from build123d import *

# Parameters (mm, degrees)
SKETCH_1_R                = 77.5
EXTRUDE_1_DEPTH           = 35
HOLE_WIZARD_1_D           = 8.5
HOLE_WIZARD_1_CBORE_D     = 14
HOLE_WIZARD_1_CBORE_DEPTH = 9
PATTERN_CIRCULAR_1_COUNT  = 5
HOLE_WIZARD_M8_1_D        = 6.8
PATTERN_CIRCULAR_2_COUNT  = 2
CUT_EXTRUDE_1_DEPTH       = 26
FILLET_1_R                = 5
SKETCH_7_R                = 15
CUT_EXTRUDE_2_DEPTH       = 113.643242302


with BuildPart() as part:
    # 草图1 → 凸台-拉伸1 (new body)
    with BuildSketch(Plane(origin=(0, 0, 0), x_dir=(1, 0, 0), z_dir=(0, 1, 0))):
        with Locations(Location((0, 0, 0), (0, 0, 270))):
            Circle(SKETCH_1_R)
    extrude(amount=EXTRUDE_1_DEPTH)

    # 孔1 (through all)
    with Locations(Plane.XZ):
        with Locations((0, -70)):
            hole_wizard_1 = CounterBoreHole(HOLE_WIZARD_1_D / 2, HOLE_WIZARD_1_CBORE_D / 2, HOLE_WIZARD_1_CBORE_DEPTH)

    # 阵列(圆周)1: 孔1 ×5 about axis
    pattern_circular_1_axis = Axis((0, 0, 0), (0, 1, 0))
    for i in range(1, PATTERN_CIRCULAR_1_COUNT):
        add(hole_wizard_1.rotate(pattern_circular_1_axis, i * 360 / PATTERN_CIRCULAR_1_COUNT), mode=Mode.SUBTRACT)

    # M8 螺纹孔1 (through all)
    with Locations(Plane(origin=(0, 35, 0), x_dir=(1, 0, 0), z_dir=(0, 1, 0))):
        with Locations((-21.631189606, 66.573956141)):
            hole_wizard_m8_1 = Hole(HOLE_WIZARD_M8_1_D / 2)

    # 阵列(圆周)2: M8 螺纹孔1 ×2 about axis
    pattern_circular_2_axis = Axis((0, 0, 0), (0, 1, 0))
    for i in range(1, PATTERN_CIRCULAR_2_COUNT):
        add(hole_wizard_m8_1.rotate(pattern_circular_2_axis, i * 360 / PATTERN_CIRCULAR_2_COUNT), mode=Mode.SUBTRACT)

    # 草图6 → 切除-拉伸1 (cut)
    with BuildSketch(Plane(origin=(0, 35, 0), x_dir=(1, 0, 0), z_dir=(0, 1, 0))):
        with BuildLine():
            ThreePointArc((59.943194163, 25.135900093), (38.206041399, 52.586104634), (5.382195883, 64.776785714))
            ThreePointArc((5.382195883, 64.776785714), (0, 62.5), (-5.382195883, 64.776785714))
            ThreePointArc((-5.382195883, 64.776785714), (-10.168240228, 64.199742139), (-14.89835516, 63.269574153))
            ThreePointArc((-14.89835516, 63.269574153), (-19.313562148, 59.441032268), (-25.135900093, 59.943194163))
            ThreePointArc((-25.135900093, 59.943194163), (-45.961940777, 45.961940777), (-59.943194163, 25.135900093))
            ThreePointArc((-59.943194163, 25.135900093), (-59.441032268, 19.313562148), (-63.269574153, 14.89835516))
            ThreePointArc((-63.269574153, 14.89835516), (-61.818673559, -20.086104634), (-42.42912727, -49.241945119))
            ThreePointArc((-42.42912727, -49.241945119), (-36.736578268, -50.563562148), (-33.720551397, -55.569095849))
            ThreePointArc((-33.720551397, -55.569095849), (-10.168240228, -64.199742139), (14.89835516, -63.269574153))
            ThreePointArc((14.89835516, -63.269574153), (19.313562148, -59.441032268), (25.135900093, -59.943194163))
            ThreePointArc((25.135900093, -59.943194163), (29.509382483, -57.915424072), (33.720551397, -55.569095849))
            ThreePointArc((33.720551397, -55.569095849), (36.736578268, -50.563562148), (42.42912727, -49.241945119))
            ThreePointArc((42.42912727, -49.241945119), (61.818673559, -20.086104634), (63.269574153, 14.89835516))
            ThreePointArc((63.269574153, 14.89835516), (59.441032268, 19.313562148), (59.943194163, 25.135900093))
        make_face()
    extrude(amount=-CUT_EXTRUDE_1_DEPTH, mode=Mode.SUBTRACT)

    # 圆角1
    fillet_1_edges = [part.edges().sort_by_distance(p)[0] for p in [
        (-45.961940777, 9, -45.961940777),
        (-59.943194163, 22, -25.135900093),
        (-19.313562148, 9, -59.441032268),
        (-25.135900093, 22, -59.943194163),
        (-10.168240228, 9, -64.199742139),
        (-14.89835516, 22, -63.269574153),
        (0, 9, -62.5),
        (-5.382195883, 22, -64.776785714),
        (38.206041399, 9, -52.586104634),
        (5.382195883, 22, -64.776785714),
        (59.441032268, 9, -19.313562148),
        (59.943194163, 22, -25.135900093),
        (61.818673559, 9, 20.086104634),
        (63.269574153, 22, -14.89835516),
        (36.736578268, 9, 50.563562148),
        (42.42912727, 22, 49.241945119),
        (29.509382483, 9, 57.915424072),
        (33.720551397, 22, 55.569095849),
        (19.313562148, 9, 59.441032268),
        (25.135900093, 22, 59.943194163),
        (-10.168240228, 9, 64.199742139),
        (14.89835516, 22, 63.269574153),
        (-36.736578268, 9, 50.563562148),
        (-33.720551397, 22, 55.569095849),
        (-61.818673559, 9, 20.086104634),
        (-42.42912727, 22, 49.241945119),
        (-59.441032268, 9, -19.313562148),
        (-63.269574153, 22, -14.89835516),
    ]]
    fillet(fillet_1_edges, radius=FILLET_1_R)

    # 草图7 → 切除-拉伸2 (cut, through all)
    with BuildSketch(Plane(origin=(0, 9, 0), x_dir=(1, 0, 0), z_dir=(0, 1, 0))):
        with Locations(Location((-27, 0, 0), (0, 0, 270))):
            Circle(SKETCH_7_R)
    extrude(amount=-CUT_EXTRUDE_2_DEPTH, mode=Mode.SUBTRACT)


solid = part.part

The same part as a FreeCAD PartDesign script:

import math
import FreeCAD as App
import Part
import Sketcher

V = App.Vector
Q = App.Units.Quantity


def edges_at(feature, points):
    """Names of the edges that pass closest to the given points."""
    edges = feature.Shape.Edges
    near = lambda p: min(range(len(edges)), key=lambda i: edges[i].distToShape(Part.Vertex(*p))[0])
    return sorted({f"Edge{near(p) + 1}" for p in points})

doc = App.newDocument("Part")
body = doc.addObject("PartDesign::Body", "Body")

sketch1 = body.newObject("Sketcher::SketchObject", "Sketch")
sketch1.AttachmentSupport = (doc.getObject("XZ_Plane"), [""])
sketch1.MapMode = "FlatFace"
sketch1.addGeometry(Part.Circle(V(0, 0, 0), V(0, 0, 1), 78), False)
sketch1.addConstraint(Sketcher.Constraint("Coincident", 0, 3, -1, 1))
sketch1.addConstraint(Sketcher.Constraint("Diameter", 0, Q("155 mm")))
pad1 = body.newObject("PartDesign::Pad", "Pad")
pad1.Profile = sketch1
pad1.Length = 35
pad1.Reversed = True

sketch2 = body.newObject("Sketcher::SketchObject", "Sketch001")
sketch2.AttachmentSupport = (doc.getObject("XZ_Plane"), [""])
sketch2.MapMode = "FlatFace"
sketch2.addGeometry(Part.Circle(V(0, -70, 0), V(0, 0, 1), 4.2), False)
sketch2.addConstraint(Sketcher.Constraint("PointOnObject", 0, 3, -2))
sketch2.addConstraint(Sketcher.Constraint("Diameter", 0, Q("8.5 mm")))
sketch2.addConstraint(Sketcher.Constraint("DistanceY", 0, 3, -1, 1, Q("70 mm")))
doc.recompute()
hole = body.newObject("PartDesign::Hole", "Hole")
hole.Profile = sketch2
hole.ThreadType = "None"
hole.Diameter = 8.5
hole.DepthType = "ThroughAll"
hole.HoleCutType = "Counterbore"
hole.HoleCutDiameter = 14
hole.HoleCutDepth = 9
doc.recompute()

polarpattern = body.newObject("PartDesign::PolarPattern", "PolarPattern")
polarpattern.Originals = [hole]
polarpattern.Axis = (doc.getObject("Y_Axis"), [""])
polarpattern.Angle = 360
polarpattern.Occurrences = 5
body.Tip = polarpattern

sketch3 = body.newObject("Sketcher::SketchObject", "Sketch002")
sketch3.AttachmentSupport = (doc.getObject("XZ_Plane"), [""])
sketch3.MapMode = "FlatFace"
sketch3.AttachmentOffset = App.Placement(V(0, 0, -35), App.Rotation())
sketch3.addGeometry(Part.Circle(V(-21.6, -66.6, 0), V(0, 0, 1), 3.4), False)
sketch3.addConstraint(Sketcher.Constraint("Diameter", 0, Q("6.8 mm")))
sketch3.addConstraint(Sketcher.Constraint("DistanceX", 0, 3, -1, 1, Q("21.63119 mm")))
sketch3.addConstraint(Sketcher.Constraint("DistanceY", 0, 3, -1, 1, Q("66.573956 mm")))
doc.recompute()
hole2 = body.newObject("PartDesign::Hole", "Hole001")
hole2.Profile = sketch3
hole2.ThreadType = "None"
hole2.Diameter = 6.8
hole2.DepthType = "ThroughAll"
hole2.Reversed = True
doc.recompute()

polarpattern2 = body.newObject("PartDesign::PolarPattern", "PolarPattern001")
polarpattern2.Originals = [hole2]
polarpattern2.Axis = (doc.getObject("Y_Axis"), [""])
polarpattern2.Angle = 360
polarpattern2.Occurrences = 2
body.Tip = polarpattern2

sketch4 = body.newObject("Sketcher::SketchObject", "Sketch003")
sketch4.AttachmentSupport = (doc.getObject("XZ_Plane"), [""])
sketch4.MapMode = "FlatFace"
sketch4.AttachmentOffset = App.Placement(V(0, 0, -35), App.Rotation())
sketch4.addGeometry(Part.ArcOfCircle(Part.Circle(V(0, 0, 0), V(0, 0, 1), 65), math.radians(-85), math.radians(-23)), False)
sketch4.addGeometry(Part.ArcOfCircle(Part.Circle(V(0, -70, 0), V(0, 0, 1), 8), math.radians(44), math.radians(136)), False)
sketch4.addGeometry(Part.ArcOfCircle(Part.Circle(V(0, 0, 0), V(0, 0, 1), 65), math.radians(-103.25), math.radians(-94.75)), False)
sketch4.addGeometry(Part.ArcOfCircle(Part.Circle(V(-22, -67, 0), V(0, 0, 1), 7), math.radians(26), math.radians(118)), False)
sketch4.addGeometry(Part.ArcOfCircle(Part.Circle(V(0, 0, 0), V(0, 0, 1), 65), math.radians(-157), math.radians(-113)), False)
sketch4.addGeometry(Part.ArcOfCircle(Part.Circle(V(-67, -22, 0), V(0, 0, 1), 7), math.radians(-28), math.radians(64)), False)
sketch4.addGeometry(Part.ArcOfCircle(Part.Circle(V(0, 0, 0), V(0, 0, 1), 65), math.radians(131), math.radians(193)), False)
sketch4.addGeometry(Part.ArcOfCircle(Part.Circle(V(-41, 57, 0), V(0, 0, 1), 7), math.radians(-100), math.radians(-8)), False)
sketch4.addGeometry(Part.ArcOfCircle(Part.Circle(V(0, 0, 0), V(0, 0, 1), 65), math.radians(77), math.radians(121)), False)
sketch4.addGeometry(Part.ArcOfCircle(Part.Circle(V(22, 67, 0), V(0, 0, 1), 7), math.radians(-154), math.radians(-62)), False)
sketch4.addGeometry(Part.ArcOfCircle(Part.Circle(V(0, 0, 0), V(0, 0, 1), 65), math.radians(58.75), math.radians(67.25)), False)
sketch4.addGeometry(Part.ArcOfCircle(Part.Circle(V(41, 57, 0), V(0, 0, 1), 7), math.radians(-172), math.radians(-80)), False)
sketch4.addGeometry(Part.ArcOfCircle(Part.Circle(V(0, 0, 0), V(0, 0, 1), 65), math.radians(-13), math.radians(49)), False)
sketch4.addGeometry(Part.ArcOfCircle(Part.Circle(V(67, -22, 0), V(0, 0, 1), 7), math.radians(116), math.radians(208)), False)
sketch4.addConstraint(Sketcher.Constraint("Coincident", 0, 1, 1, 1))
sketch4.addConstraint(Sketcher.Constraint("Coincident", 1, 2, 2, 2))
sketch4.addConstraint(Sketcher.Constraint("Coincident", 2, 1, 3, 1))
sketch4.addConstraint(Sketcher.Constraint("Coincident", 3, 2, 4, 2))
sketch4.addConstraint(Sketcher.Constraint("Coincident", 4, 1, 5, 1))
sketch4.addConstraint(Sketcher.Constraint("Coincident", 5, 2, 6, 2))
sketch4.addConstraint(Sketcher.Constraint("Coincident", 6, 1, 7, 1))
sketch4.addConstraint(Sketcher.Constraint("Coincident", 7, 2, 8, 2))
sketch4.addConstraint(Sketcher.Constraint("Coincident", 8, 1, 9, 1))
sketch4.addConstraint(Sketcher.Constraint("Coincident", 9, 2, 10, 2))
sketch4.addConstraint(Sketcher.Constraint("Coincident", 10, 1, 11, 1))
sketch4.addConstraint(Sketcher.Constraint("Coincident", 11, 2, 12, 2))
sketch4.addConstraint(Sketcher.Constraint("Coincident", 12, 1, 13, 1))
sketch4.addConstraint(Sketcher.Constraint("Coincident", 13, 2, 0, 2))
sketch4.addConstraint(Sketcher.Constraint("Coincident", 0, 3, -1, 1))
sketch4.addConstraint(Sketcher.Constraint("Coincident", 2, 3, -1, 1))
sketch4.addConstraint(Sketcher.Constraint("Coincident", 4, 3, -1, 1))
sketch4.addConstraint(Sketcher.Constraint("Coincident", 6, 3, -1, 1))
sketch4.addConstraint(Sketcher.Constraint("Coincident", 8, 3, -1, 1))
sketch4.addConstraint(Sketcher.Constraint("Coincident", 10, 3, -1, 1))
sketch4.addConstraint(Sketcher.Constraint("Coincident", 12, 3, -1, 1))
sketch4.addConstraint(Sketcher.Constraint("Equal", 0, 2))
sketch4.addConstraint(Sketcher.Constraint("Equal", 1, 3))
sketch4.addConstraint(Sketcher.Constraint("Equal", 2, 4))
sketch4.addConstraint(Sketcher.Constraint("Equal", 3, 5))
sketch4.addConstraint(Sketcher.Constraint("Equal", 4, 6))
sketch4.addConstraint(Sketcher.Constraint("Equal", 5, 7))
sketch4.addConstraint(Sketcher.Constraint("Equal", 6, 8))
sketch4.addConstraint(Sketcher.Constraint("Equal", 7, 9))
sketch4.addConstraint(Sketcher.Constraint("Equal", 8, 10))
sketch4.addConstraint(Sketcher.Constraint("Equal", 9, 11))
sketch4.addConstraint(Sketcher.Constraint("Equal", 10, 12))
sketch4.addConstraint(Sketcher.Constraint("Equal", 11, 13))
sketch4.addConstraint(Sketcher.Constraint("Symmetric", 3, 3, 9, 3, -1, 1))
sketch4.addConstraint(Sketcher.Constraint("Symmetric", 7, 3, 11, 3, -2))
sketch4.addConstraint(Sketcher.Constraint("Symmetric", 5, 3, 13, 3, -2))
sketch4.addConstraint(Sketcher.Constraint("PointOnObject", 1, 3, -2))
sketch4.addConstraint(Sketcher.Constraint("Radius", 0, Q("65 mm")))
sketch4.addConstraint(Sketcher.Constraint("Radius", 1, Q("7.5 mm")))
sketch4.addConstraint(Sketcher.Constraint("DistanceY", 1, 3, -1, 1, Q("70 mm")))
sketch4.addConstraint(Sketcher.Constraint("DistanceX", 3, 2, -1, 1, Q("25.1359 mm")))
sketch4.addConstraint(Sketcher.Constraint("DistanceY", 4, 1, -1, 1, Q("25.1359 mm")))
sketch4.addConstraint(Sketcher.Constraint("DistanceY", 7, 2, 9, 2, Q("4.374098 mm")))
sketch4.addConstraint(Sketcher.Constraint("DistanceX", 3, 3, -1, 1, Q("21.63119 mm")))
sketch4.addConstraint(Sketcher.Constraint("DistanceY", 5, 3, -1, 1, Q("21.63119 mm")))
sketch4.addConstraint(Sketcher.Constraint("DistanceY", -1, 1, 7, 3, Q("56.63119 mm")))
pocket1 = body.newObject("PartDesign::Pocket", "Pocket")
pocket1.Profile = sketch4
pocket1.Length = 26
pocket1.Reversed = True
doc.recompute()

fillet = body.newObject("PartDesign::Fillet", "Fillet")
fillet.Base = (pocket1, edges_at(pocket1, [
    (-45.962, 9, -45.962),
    (-59.943, 22, -25.136),
    (-19.314, 9, -59.441),
    (-25.136, 22, -59.943),
    (-10.168, 9, -64.2),
    (-14.898, 22, -63.27),
    (0, 9, -62.5),
    (-5.382, 22, -64.777),
    (38.206, 9, -52.586),
    (5.382, 22, -64.777),
    (59.441, 9, -19.314),
    (59.943, 22, -25.136),
    (61.819, 9, 20.086),
    (63.27, 22, -14.898),
    (36.737, 9, 50.564),
    (42.429, 22, 49.242),
    (29.509, 9, 57.915),
    (33.721, 22, 55.569),
    (19.314, 9, 59.441),
    (25.136, 22, 59.943),
    (-10.168, 9, 64.2),
    (14.898, 22, 63.27),
    (-36.737, 9, 50.564),
    (-33.721, 22, 55.569),
    (-61.819, 9, 20.086),
    (-42.429, 22, 49.242),
    (-59.441, 9, -19.314),
    (-63.27, 22, -14.898),
]))
fillet.Radius = 5

sketch5 = body.newObject("Sketcher::SketchObject", "Sketch004")
sketch5.AttachmentSupport = (doc.getObject("XZ_Plane"), [""])
sketch5.MapMode = "FlatFace"
sketch5.AttachmentOffset = App.Placement(V(0, 0, -9), App.Rotation())
sketch5.addGeometry(Part.Circle(V(-27, 0, 0), V(0, 0, 1), 15), False)
sketch5.addConstraint(Sketcher.Constraint("PointOnObject", 0, 3, -1))
sketch5.addConstraint(Sketcher.Constraint("Diameter", 0, Q("30 mm")))
sketch5.addConstraint(Sketcher.Constraint("DistanceX", 0, 3, -1, 1, Q("27 mm")))
pocket2 = body.newObject("PartDesign::Pocket", "Pocket001")
pocket2.Profile = sketch5
pocket2.Type = "ThroughAll"
pocket2.Reversed = True

doc.recompute()
